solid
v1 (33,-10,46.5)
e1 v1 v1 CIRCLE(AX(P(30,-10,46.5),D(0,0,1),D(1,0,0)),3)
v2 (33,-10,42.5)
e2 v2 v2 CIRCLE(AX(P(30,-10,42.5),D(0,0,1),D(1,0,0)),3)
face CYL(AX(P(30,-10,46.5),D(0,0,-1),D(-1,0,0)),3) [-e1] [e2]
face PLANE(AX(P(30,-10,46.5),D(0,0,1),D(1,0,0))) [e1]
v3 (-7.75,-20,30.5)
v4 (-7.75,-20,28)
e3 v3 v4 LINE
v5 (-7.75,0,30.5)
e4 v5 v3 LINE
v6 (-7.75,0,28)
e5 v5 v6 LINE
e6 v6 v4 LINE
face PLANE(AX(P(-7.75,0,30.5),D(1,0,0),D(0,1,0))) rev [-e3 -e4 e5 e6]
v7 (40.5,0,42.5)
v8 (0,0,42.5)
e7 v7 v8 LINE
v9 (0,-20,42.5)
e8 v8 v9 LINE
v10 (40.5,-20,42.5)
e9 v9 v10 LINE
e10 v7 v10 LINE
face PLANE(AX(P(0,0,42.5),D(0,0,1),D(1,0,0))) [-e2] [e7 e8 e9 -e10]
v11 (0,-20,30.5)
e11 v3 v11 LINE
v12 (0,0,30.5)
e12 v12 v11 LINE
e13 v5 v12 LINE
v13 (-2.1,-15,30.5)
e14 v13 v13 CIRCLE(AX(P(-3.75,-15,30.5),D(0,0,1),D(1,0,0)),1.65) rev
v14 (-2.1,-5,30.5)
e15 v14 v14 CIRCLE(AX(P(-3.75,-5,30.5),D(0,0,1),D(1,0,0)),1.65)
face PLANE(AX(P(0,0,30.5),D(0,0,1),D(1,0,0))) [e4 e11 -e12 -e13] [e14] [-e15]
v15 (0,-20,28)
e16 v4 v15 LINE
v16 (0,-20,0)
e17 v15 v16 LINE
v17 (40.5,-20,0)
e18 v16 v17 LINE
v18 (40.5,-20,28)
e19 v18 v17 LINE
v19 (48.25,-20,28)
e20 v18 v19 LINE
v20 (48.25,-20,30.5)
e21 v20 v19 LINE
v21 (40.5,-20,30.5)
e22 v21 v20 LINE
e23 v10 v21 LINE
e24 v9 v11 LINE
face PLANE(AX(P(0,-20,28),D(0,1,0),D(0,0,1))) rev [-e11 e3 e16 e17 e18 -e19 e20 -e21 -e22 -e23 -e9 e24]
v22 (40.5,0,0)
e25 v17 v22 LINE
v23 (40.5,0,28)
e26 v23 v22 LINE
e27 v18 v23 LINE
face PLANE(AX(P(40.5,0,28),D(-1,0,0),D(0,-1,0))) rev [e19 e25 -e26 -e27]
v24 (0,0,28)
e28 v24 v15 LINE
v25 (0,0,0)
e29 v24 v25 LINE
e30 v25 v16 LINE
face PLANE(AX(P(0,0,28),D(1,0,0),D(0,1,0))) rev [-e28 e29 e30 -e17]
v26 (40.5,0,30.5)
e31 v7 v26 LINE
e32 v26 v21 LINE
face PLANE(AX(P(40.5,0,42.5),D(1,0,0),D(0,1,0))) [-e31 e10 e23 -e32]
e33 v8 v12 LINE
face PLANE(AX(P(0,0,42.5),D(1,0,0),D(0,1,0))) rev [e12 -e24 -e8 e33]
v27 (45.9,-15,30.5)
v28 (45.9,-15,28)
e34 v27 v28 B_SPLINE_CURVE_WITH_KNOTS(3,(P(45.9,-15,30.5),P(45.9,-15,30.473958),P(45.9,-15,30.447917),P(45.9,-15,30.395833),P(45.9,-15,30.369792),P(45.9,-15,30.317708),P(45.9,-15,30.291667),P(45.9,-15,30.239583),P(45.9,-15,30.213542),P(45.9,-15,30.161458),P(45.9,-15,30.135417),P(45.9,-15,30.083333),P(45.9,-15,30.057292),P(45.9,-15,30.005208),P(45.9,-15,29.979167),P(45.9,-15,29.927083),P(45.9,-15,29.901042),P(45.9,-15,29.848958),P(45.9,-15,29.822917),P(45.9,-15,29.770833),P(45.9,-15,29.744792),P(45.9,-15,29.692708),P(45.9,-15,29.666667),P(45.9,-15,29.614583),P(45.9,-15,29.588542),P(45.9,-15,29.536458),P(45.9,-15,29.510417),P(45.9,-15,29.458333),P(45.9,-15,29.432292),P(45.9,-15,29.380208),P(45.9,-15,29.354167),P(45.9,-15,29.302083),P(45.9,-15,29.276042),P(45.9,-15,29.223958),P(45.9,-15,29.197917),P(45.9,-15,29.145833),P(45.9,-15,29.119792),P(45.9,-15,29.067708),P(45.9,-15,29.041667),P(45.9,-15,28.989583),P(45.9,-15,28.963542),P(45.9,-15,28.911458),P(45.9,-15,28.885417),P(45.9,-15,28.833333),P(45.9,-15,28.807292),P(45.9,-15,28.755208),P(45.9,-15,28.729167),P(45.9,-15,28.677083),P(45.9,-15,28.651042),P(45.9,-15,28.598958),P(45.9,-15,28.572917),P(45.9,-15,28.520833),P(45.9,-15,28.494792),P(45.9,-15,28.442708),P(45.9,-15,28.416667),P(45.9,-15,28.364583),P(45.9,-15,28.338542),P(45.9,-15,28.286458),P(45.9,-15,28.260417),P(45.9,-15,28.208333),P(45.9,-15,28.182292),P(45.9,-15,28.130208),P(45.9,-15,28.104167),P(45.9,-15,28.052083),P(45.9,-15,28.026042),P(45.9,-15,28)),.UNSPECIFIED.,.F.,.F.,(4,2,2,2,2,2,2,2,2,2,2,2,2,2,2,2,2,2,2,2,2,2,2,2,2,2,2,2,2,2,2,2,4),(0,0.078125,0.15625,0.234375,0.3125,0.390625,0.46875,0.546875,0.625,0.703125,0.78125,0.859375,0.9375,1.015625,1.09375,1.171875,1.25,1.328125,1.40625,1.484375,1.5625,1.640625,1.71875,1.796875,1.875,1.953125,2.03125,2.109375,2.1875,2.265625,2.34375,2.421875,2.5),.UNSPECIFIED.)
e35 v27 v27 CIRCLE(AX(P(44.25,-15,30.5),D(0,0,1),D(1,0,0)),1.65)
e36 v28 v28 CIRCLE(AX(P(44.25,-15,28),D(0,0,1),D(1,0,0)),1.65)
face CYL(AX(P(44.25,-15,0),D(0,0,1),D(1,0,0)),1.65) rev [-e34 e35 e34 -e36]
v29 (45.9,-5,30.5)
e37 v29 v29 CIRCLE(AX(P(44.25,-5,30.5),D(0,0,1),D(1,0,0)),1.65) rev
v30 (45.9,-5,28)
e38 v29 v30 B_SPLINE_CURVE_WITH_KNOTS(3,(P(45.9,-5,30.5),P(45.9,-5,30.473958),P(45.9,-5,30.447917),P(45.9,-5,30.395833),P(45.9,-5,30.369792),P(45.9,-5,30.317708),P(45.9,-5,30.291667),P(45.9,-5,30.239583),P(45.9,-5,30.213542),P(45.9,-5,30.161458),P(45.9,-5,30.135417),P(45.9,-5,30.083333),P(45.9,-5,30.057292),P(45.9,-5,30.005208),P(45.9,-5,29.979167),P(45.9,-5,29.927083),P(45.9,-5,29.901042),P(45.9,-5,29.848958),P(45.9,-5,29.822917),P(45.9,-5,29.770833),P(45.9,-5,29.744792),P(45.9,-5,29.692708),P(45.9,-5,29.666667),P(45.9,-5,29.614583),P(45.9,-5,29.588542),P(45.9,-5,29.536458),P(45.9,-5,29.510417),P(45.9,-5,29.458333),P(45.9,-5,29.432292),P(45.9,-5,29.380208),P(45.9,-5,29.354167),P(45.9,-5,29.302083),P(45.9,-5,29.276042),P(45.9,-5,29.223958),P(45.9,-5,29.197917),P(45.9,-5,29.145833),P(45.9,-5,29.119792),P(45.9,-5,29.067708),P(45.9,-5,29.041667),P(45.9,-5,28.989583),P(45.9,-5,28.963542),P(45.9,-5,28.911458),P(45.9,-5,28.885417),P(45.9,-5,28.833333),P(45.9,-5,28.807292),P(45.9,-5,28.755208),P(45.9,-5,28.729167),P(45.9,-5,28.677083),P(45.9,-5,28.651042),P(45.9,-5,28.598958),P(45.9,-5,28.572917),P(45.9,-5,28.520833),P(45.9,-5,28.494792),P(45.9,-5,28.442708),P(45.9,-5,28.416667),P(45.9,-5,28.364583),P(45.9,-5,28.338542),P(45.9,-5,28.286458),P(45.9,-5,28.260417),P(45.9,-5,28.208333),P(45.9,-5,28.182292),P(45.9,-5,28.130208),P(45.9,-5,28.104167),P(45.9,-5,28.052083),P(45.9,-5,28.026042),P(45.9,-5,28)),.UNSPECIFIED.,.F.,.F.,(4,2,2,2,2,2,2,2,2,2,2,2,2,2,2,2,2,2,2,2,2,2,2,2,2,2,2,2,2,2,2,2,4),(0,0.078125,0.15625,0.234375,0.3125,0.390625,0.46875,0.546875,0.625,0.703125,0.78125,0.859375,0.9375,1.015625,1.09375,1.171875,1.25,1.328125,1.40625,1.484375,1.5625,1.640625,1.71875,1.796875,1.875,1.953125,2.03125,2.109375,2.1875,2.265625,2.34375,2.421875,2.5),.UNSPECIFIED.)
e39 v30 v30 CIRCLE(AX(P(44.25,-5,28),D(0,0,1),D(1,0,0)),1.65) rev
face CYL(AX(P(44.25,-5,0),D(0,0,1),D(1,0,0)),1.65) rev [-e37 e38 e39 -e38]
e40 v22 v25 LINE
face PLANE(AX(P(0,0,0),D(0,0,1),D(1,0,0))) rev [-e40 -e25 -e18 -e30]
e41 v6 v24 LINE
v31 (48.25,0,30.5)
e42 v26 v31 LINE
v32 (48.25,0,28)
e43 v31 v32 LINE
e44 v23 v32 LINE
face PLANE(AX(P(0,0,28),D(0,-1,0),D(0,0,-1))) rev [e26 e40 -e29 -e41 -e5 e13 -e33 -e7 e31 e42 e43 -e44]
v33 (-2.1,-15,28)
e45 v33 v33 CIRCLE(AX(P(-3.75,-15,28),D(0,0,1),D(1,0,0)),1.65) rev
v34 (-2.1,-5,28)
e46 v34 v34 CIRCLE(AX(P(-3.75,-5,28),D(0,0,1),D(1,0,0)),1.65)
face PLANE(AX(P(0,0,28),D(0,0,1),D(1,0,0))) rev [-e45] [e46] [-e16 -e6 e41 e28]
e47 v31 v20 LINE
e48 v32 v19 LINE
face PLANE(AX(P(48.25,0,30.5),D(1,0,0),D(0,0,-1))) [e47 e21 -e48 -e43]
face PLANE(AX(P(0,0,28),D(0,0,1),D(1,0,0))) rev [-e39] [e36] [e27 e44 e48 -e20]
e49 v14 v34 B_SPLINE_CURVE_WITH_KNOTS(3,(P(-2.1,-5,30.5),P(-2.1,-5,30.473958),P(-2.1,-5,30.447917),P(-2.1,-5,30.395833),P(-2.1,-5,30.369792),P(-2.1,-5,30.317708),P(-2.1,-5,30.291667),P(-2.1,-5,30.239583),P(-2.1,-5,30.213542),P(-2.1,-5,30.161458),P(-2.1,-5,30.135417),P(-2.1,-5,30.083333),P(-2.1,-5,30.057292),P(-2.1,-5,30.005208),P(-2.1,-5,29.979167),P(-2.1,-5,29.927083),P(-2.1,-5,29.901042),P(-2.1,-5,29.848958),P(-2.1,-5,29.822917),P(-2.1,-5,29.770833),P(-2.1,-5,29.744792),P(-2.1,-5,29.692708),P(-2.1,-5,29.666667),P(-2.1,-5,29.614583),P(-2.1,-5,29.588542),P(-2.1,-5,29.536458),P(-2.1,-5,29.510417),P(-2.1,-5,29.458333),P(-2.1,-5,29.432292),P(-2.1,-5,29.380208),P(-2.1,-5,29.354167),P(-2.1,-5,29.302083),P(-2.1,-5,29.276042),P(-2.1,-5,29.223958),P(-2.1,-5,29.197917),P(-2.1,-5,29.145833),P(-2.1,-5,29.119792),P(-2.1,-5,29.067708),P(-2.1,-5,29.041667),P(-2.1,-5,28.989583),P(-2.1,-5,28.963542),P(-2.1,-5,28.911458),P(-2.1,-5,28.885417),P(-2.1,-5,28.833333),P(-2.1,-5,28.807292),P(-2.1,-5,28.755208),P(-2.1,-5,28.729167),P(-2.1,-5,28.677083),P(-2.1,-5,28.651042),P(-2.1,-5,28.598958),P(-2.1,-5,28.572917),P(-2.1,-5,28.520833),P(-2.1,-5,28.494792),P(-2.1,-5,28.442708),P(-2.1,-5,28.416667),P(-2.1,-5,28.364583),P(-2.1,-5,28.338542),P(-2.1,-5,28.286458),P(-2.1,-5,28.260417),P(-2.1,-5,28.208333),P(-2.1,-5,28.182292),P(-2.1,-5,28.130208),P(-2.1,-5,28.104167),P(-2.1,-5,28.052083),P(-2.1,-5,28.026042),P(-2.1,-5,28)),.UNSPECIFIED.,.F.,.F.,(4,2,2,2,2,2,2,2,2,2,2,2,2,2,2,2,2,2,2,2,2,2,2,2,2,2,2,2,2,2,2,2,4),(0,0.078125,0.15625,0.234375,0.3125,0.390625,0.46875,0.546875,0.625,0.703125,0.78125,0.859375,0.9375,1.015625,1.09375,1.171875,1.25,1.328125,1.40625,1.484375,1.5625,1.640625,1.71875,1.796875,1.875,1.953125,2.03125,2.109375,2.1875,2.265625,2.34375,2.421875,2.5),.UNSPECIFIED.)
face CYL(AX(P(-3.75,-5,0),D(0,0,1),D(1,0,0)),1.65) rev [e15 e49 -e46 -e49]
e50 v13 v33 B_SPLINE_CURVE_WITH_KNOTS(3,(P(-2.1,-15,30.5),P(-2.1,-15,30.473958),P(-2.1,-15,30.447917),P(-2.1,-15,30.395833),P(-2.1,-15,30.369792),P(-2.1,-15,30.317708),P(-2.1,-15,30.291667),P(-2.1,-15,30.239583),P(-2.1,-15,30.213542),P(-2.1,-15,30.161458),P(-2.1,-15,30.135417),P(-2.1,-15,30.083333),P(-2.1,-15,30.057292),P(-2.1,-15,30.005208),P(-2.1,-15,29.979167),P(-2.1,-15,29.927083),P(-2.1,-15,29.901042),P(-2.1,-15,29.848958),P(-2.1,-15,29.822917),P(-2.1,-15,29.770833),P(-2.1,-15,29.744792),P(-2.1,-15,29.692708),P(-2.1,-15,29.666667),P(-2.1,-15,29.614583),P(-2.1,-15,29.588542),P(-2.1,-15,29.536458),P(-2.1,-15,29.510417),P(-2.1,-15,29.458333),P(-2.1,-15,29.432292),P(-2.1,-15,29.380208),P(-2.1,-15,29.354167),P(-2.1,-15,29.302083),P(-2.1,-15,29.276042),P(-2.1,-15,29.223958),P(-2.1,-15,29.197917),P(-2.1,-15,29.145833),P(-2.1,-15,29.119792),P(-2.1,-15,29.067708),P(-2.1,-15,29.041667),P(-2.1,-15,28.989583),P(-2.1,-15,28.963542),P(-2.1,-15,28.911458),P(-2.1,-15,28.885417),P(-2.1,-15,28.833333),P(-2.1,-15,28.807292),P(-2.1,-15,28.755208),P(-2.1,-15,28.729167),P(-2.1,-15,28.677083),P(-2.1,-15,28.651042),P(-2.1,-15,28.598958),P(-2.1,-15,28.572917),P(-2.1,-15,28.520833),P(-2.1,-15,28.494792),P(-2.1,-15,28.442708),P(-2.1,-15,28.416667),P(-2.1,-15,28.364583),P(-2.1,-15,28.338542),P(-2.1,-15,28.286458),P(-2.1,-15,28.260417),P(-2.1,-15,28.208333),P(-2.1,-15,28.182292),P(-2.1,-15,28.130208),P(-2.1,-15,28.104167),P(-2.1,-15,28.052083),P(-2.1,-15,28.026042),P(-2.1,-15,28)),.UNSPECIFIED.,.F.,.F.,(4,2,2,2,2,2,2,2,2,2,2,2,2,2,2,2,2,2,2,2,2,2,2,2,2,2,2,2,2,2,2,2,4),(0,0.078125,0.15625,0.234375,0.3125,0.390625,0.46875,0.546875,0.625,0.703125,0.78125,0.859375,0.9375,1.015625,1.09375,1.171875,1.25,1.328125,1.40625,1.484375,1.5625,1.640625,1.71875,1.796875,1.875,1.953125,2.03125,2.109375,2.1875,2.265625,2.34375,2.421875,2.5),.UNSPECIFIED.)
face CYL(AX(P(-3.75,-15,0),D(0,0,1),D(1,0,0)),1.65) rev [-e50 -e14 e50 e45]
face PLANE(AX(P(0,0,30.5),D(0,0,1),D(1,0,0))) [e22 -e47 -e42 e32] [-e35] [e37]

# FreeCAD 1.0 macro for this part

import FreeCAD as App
import Part
import Sketcher
from FreeCAD import Vector


def add_polygon(sketch, points):
    """Adds a closed chain of lines whose ends are joined by coincident constraints."""
    first, n = sketch.GeometryCount, len(points)
    for a, b in zip(points, points[1:] + points[:1]):
        sketch.addGeometry(Part.LineSegment(App.Vector(*a, 0), App.Vector(*b, 0)), False)
    for i in range(n):
        sketch.addConstraint(Sketcher.Constraint("Coincident", first + i, 2, first + (i + 1) % n, 1))

doc = App.newDocument("Part")
params = doc.addObject("Spreadsheet::Sheet", "Params")
for row, (alias, value) in enumerate([
    ("sketch1_height", "20 mm"),
    ("sketch1_width", "40.5 mm"),
    ("pad1_length", "28 mm"),
    ("sketch2_width", "56 mm"),
    ("sketch2_height", "20 mm"),
    ("pad2_length", "2.5 mm"),
    ("sketch3_height", "20 mm"),
    ("sketch3_width", "40.5 mm"),
    ("pad3_length", "12 mm"),
    ("sketch4_diameter", "6 mm"),
    ("pad4_length", "4 mm"),
    ("sketch5_diameter", "3.3 mm"),
], start=1):
    params.set(f"A{row}", alias)
    params.set(f"B{row}", "=" + value)
    params.setAlias(f"B{row}", alias)

body = doc.addObject("PartDesign::Body", "Body")

sketch1 = body.newObject("Sketcher::SketchObject", "Sketch")
sketch1.AttachmentSupport = (doc.getObject("XY_Plane"), [""])
sketch1.MapMode = "FlatFace"
add_polygon(sketch1, [(0, 0), (0, -20), (40.5, -20), (40.5, 0)])
sketch1.addConstraint(Sketcher.Constraint("Vertical", 0))
sketch1.addConstraint(Sketcher.Constraint("Horizontal", 1))
sketch1.addConstraint(Sketcher.Constraint("Vertical", 2))
sketch1.addConstraint(Sketcher.Constraint("Horizontal", 3))
sketch1.addConstraint(Sketcher.Constraint("Coincident", 3, 2, -1, 1))
sketch1.addConstraint(Sketcher.Constraint("DistanceY", 0, 2, 0, 1, 20.0))
sketch1.addConstraint(Sketcher.Constraint("DistanceX", 1, 1, 1, 2, 40.5))
sketch1.setExpression("Constraints[9]", "Params.sketch1_height")
sketch1.setExpression("Constraints[10]", "Params.sketch1_width")
pad1 = body.newObject("PartDesign::Pad", "Pad")
pad1.Profile = sketch1
pad1.setExpression("Length", "Params.pad1_length")

sketch2 = body.newObject("Sketcher::SketchObject", "Sketch001")
sketch2.AttachmentSupport = (doc.getObject("XY_Plane"), [""])
sketch2.MapMode = "FlatFace"
sketch2.AttachmentOffset = App.Placement(Vector(0, 0, 28), App.Rotation())
add_polygon(sketch2, [(-7.75, 0), (-7.75, -20), (48.25, -20), (48.25, 0)])
sketch2.addConstraint(Sketcher.Constraint("Vertical", 0))
sketch2.addConstraint(Sketcher.Constraint("Horizontal", 1))
sketch2.addConstraint(Sketcher.Constraint("Vertical", 2))
sketch2.addConstraint(Sketcher.Constraint("Horizontal", 3))
sketch2.addConstraint(Sketcher.Constraint("PointOnObject", 2, 2, -1))
sketch2.addConstraint(Sketcher.Constraint("DistanceX", 1, 1, 1, 2, 56.0))
sketch2.addConstraint(Sketcher.Constraint("DistanceY", 0, 2, 0, 1, 20.0))
sketch2.addConstraint(Sketcher.Constraint("DistanceX", 0, 2, -1, 1, 7.75))
sketch2.setExpression("Constraints[9]", "Params.sketch2_width")
sketch2.setExpression("Constraints[10]", "Params.sketch2_height")
pad2 = body.newObject("PartDesign::Pad", "Pad001")
pad2.Profile = sketch2
pad2.setExpression("Length", "Params.pad2_length")

sketch3 = body.newObject("Sketcher::SketchObject", "Sketch002")
sketch3.AttachmentSupport = (doc.getObject("XY_Plane"), [""])
sketch3.MapMode = "FlatFace"
sketch3.AttachmentOffset = App.Placement(Vector(0, 0, 30.5), App.Rotation())
add_polygon(sketch3, [(0, 0), (0, -20), (40.5, -20), (40.5, 0)])
sketch3.addConstraint(Sketcher.Constraint("Vertical", 0))
sketch3.addConstraint(Sketcher.Constraint("Horizontal", 1))
sketch3.addConstraint(Sketcher.Constraint("Vertical", 2))
sketch3.addConstraint(Sketcher.Constraint("Horizontal", 3))
sketch3.addConstraint(Sketcher.Constraint("Coincident", 3, 2, -1, 1))
sketch3.addConstraint(Sketcher.Constraint("DistanceY", 0, 2, 0, 1, 20.0))
sketch3.addConstraint(Sketcher.Constraint("DistanceX", 1, 1, 1, 2, 40.5))
sketch3.setExpression("Constraints[9]", "Params.sketch3_height")
sketch3.setExpression("Constraints[10]", "Params.sketch3_width")
pad3 = body.newObject("PartDesign::Pad", "Pad002")
pad3.Profile = sketch3
pad3.setExpression("Length", "Params.pad3_length")

sketch4 = body.newObject("Sketcher::SketchObject", "Sketch003")
sketch4.AttachmentSupport = (doc.getObject("XY_Plane"), [""])
sketch4.MapMode = "FlatFace"
sketch4.AttachmentOffset = App.Placement(Vector(0, 0, 42.5), App.Rotation())
sketch4.addGeometry(Part.Circle(Vector(30, -10, 0), Vector(0, 0, 1), 3), False)
sketch4.addConstraint(Sketcher.Constraint("Diameter", 0, 6.0))
sketch4.addConstraint(Sketcher.Constraint("DistanceX", -1, 1, 0, 3, 30.0))
sketch4.addConstraint(Sketcher.Constraint("DistanceY", 0, 3, -1, 1, 10.0))
sketch4.setExpression("Constraints[0]", "Params.sketch4_diameter")
pad4 = body.newObject("PartDesign::Pad", "Pad003")
pad4.Profile = sketch4
pad4.setExpression("Length", "Params.pad4_length")

sketch5 = body.newObject("Sketcher::SketchObject", "Sketch004")
sketch5.AttachmentSupport = (doc.getObject("XY_Plane"), [""])
sketch5.MapMode = "FlatFace"
sketch5.AttachmentOffset = App.Placement(Vector(0, 0, 30.5), App.Rotation())
sketch5.addGeometry(Part.Circle(Vector(-3.75, -5, 0), Vector(0, 0, 1), 1.65), False)
sketch5.addGeometry(Part.Circle(Vector(-3.75, -15, 0), Vector(0, 0, 1), 1.65), False)
sketch5.addGeometry(Part.Circle(Vector(44.25, -5, 0), Vector(0, 0, 1), 1.65), False)
sketch5.addGeometry(Part.Circle(Vector(44.25, -15, 0), Vector(0, 0, 1), 1.65), False)
sketch5.addConstraint(Sketcher.Constraint("Equal", 0, 1))
sketch5.addConstraint(Sketcher.Constraint("Equal", 1, 2))
sketch5.addConstraint(Sketcher.Constraint("Equal", 2, 3))
sketch5.addConstraint(Sketcher.Constraint("Horizontal", 0, 3, 2, 3))
sketch5.addConstraint(Sketcher.Constraint("Horizontal", 1, 3, 3, 3))
sketch5.addConstraint(Sketcher.Constraint("Vertical", 0, 3, 1, 3))
sketch5.addConstraint(Sketcher.Constraint("Vertical", 2, 3, 3, 3))
sketch5.addConstraint(Sketcher.Constraint("Diameter", 0, 3.3))
sketch5.addConstraint(Sketcher.Constraint("DistanceY", 0, 3, -1, 1, 5.0))
sketch5.addConstraint(Sketcher.Constraint("DistanceY", 1, 3, -1, 1, 15.0))
sketch5.addConstraint(Sketcher.Constraint("DistanceX", 0, 3, 2, 3, 48.0))
sketch5.addConstraint(Sketcher.Constraint("DistanceX", 0, 3, -1, 1, 3.75))
sketch5.setExpression("Constraints[7]", "Params.sketch5_diameter")
pocket1 = body.newObject("PartDesign::Pocket", "Pocket")
pocket1.Profile = sketch5
pocket1.Type = "ThroughAll"

doc.recompute()
